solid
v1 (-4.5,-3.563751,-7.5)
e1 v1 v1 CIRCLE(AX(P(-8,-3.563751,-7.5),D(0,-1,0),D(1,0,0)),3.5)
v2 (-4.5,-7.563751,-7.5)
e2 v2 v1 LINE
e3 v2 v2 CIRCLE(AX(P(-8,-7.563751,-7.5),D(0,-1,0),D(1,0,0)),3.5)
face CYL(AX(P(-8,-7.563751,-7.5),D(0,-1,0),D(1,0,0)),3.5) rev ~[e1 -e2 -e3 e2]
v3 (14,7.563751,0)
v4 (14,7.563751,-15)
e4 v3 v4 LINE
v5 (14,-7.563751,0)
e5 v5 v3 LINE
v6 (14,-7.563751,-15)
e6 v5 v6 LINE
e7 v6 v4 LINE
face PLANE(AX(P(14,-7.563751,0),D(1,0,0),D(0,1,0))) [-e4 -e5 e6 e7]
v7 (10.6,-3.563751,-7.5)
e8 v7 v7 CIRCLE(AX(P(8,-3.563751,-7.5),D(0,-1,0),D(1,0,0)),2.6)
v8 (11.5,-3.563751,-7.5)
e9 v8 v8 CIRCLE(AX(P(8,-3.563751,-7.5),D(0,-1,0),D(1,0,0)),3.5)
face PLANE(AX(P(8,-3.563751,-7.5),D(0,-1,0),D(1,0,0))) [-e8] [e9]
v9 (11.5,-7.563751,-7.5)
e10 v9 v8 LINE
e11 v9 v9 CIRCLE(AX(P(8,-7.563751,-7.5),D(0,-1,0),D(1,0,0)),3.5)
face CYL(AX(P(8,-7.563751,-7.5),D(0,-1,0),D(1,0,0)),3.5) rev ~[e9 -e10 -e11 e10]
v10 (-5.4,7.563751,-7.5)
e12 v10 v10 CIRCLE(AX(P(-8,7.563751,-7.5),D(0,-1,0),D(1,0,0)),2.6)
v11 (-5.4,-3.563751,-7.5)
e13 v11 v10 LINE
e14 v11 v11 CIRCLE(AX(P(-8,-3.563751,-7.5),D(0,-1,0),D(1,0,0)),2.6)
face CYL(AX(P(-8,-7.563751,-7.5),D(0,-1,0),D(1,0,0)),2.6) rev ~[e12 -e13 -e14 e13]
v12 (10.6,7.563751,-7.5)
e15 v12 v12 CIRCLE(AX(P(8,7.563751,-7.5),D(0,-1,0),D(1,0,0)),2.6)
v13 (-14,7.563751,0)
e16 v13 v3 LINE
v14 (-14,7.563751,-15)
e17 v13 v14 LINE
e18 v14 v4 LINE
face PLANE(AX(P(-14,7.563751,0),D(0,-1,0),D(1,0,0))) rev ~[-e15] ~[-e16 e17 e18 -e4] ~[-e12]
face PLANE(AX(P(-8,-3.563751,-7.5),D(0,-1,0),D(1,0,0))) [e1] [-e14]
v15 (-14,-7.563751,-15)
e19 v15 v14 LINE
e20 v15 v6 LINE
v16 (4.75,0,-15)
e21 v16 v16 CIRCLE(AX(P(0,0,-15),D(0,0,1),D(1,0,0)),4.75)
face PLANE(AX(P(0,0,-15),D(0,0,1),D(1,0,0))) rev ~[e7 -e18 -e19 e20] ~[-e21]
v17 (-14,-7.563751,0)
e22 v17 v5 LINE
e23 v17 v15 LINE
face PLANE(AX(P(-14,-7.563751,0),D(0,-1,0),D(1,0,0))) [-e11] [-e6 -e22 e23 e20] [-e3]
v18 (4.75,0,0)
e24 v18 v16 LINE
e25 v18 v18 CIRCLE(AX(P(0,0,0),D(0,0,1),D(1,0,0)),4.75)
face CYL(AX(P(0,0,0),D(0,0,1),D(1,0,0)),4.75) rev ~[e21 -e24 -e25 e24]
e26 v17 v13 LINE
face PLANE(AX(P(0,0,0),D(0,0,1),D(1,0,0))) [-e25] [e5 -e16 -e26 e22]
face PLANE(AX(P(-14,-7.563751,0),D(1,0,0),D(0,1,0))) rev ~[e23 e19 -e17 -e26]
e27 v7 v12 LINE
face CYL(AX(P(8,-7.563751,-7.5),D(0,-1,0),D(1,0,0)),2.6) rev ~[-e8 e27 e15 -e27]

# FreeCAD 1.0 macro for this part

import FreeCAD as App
import Part
import Sketcher
from FreeCAD import Vector
Q = App.Units.Quantity

doc = App.newDocument("Part")
body = doc.addObject("PartDesign::Body", "Body")

# Sketch on XY plane
sketch1 = body.newObject("Sketcher::SketchObject", "Sketch")
sketch1.AttachmentSupport = (doc.getObject("XY_Plane"), [""])
sketch1.MapMode = "FlatFace"
sketch1.addGeometry([
    Part.LineSegment(Vector(-14, 7.6, 0), Vector(-14, -7.6, 0)),  # 0
    Part.LineSegment(Vector(-14, -7.6, 0), Vector(14, -7.6, 0)),  # 1
    Part.LineSegment(Vector(14, -7.6, 0), Vector(14, 7.6, 0)),  # 2
    Part.LineSegment(Vector(14, 7.6, 0), Vector(-14, 7.6, 0)),  # 3
    Part.Circle(Vector(0, 0, 0), Vector(0, 0, 1), 4.8),  # 4
], False)
sketch1.addConstraint([
    Sketcher.Constraint("Coincident", 0, 2, 1, 1),
    Sketcher.Constraint("Coincident", 1, 2, 2, 1),
    Sketcher.Constraint("Coincident", 2, 2, 3, 1),
    Sketcher.Constraint("Coincident", 3, 2, 0, 1),
    Sketcher.Constraint("Vertical", 0),
    Sketcher.Constraint("Horizontal", 1),
    Sketcher.Constraint("Vertical", 2),
    Sketcher.Constraint("Horizontal", 3),
    Sketcher.Constraint("Coincident", 4, 3, -1, 1),
    Sketcher.Constraint("Symmetric", 0, 2, 2, 2, -1, 1),
    Sketcher.Constraint("Diameter", 4, Q("9.5 mm")),
    Sketcher.Constraint("DistanceX", 1, 1, 1, 2, Q("28 mm")),
    Sketcher.Constraint("DistanceY", 0, 2, 0, 1, Q("15.127502 mm")),
])
pad1 = body.newObject("PartDesign::Pad", "Pad")
pad1.Profile = sketch1
pad1.Length = 15
pad1.Reversed = True

# Sketch on XZ plane
sketch2 = body.newObject("Sketcher::SketchObject", "Sketch001")
sketch2.AttachmentSupport = (doc.getObject("XZ_Plane"), [""])
sketch2.MapMode = "FlatFace"
sketch2.AttachmentOffset = App.Placement(Vector(0, 0, 7.563751), App.Rotation())
sketch2.addGeometry([
    Part.Circle(Vector(-8, -7.5, 0), Vector(0, 0, 1), 2.6),
    Part.Circle(Vector(8, -7.5, 0), Vector(0, 0, 1), 2.6),
], False)
sketch2.addConstraint([
    Sketcher.Constraint("Equal", 0, 1),
    Sketcher.Constraint("Symmetric", 0, 3, 1, 3, -2),
    Sketcher.Constraint("Diameter", 0, Q("5.2 mm")),
    Sketcher.Constraint("DistanceX", 0, 3, -1, 1, Q("8 mm")),
    Sketcher.Constraint("DistanceY", 0, 3, -1, 1, Q("7.5 mm")),
])
pocket1 = body.newObject("PartDesign::Pocket", "Pocket")
pocket1.Profile = sketch2
pocket1.Length = 25

# Sketch on XZ plane
sketch3 = body.newObject("Sketcher::SketchObject", "Sketch002")
sketch3.AttachmentSupport = (doc.getObject("XZ_Plane"), [""])
sketch3.MapMode = "FlatFace"
sketch3.AttachmentOffset = App.Placement(Vector(0, 0, 7.563751), App.Rotation())
sketch3.addGeometry([
    Part.Circle(Vector(-8, -7.5, 0), Vector(0, 0, 1), 3.5),
    Part.Circle(Vector(-8, -7.5, 0), Vector(0, 0, 1), 2.6),
    Part.Circle(Vector(8, -7.5, 0), Vector(0, 0, 1), 3.5),
    Part.Circle(Vector(8, -7.5, 0), Vector(0, 0, 1), 2.6),
], False)
sketch3.addConstraint([
    Sketcher.Constraint("Coincident", 1, 3, 0, 3),
    Sketcher.Constraint("Coincident", 3, 3, 2, 3),
    Sketcher.Constraint("Equal", 0, 2),
    Sketcher.Constraint("Equal", 1, 3),
    Sketcher.Constraint("Symmetric", 0, 3, 2, 3, -2),
    Sketcher.Constraint("Diameter", 0, Q("7 mm")),
    Sketcher.Constraint("Diameter", 1, Q("5.2 mm")),
    Sketcher.Constraint("DistanceX", 0, 3, -1, 1, Q("8 mm")),
    Sketcher.Constraint("DistanceY", 0, 3, -1, 1, Q("7.5 mm")),
])
pocket2 = body.newObject("PartDesign::Pocket", "Pocket001")
pocket2.Profile = sketch3
pocket2.Length = 4

doc.recompute()
